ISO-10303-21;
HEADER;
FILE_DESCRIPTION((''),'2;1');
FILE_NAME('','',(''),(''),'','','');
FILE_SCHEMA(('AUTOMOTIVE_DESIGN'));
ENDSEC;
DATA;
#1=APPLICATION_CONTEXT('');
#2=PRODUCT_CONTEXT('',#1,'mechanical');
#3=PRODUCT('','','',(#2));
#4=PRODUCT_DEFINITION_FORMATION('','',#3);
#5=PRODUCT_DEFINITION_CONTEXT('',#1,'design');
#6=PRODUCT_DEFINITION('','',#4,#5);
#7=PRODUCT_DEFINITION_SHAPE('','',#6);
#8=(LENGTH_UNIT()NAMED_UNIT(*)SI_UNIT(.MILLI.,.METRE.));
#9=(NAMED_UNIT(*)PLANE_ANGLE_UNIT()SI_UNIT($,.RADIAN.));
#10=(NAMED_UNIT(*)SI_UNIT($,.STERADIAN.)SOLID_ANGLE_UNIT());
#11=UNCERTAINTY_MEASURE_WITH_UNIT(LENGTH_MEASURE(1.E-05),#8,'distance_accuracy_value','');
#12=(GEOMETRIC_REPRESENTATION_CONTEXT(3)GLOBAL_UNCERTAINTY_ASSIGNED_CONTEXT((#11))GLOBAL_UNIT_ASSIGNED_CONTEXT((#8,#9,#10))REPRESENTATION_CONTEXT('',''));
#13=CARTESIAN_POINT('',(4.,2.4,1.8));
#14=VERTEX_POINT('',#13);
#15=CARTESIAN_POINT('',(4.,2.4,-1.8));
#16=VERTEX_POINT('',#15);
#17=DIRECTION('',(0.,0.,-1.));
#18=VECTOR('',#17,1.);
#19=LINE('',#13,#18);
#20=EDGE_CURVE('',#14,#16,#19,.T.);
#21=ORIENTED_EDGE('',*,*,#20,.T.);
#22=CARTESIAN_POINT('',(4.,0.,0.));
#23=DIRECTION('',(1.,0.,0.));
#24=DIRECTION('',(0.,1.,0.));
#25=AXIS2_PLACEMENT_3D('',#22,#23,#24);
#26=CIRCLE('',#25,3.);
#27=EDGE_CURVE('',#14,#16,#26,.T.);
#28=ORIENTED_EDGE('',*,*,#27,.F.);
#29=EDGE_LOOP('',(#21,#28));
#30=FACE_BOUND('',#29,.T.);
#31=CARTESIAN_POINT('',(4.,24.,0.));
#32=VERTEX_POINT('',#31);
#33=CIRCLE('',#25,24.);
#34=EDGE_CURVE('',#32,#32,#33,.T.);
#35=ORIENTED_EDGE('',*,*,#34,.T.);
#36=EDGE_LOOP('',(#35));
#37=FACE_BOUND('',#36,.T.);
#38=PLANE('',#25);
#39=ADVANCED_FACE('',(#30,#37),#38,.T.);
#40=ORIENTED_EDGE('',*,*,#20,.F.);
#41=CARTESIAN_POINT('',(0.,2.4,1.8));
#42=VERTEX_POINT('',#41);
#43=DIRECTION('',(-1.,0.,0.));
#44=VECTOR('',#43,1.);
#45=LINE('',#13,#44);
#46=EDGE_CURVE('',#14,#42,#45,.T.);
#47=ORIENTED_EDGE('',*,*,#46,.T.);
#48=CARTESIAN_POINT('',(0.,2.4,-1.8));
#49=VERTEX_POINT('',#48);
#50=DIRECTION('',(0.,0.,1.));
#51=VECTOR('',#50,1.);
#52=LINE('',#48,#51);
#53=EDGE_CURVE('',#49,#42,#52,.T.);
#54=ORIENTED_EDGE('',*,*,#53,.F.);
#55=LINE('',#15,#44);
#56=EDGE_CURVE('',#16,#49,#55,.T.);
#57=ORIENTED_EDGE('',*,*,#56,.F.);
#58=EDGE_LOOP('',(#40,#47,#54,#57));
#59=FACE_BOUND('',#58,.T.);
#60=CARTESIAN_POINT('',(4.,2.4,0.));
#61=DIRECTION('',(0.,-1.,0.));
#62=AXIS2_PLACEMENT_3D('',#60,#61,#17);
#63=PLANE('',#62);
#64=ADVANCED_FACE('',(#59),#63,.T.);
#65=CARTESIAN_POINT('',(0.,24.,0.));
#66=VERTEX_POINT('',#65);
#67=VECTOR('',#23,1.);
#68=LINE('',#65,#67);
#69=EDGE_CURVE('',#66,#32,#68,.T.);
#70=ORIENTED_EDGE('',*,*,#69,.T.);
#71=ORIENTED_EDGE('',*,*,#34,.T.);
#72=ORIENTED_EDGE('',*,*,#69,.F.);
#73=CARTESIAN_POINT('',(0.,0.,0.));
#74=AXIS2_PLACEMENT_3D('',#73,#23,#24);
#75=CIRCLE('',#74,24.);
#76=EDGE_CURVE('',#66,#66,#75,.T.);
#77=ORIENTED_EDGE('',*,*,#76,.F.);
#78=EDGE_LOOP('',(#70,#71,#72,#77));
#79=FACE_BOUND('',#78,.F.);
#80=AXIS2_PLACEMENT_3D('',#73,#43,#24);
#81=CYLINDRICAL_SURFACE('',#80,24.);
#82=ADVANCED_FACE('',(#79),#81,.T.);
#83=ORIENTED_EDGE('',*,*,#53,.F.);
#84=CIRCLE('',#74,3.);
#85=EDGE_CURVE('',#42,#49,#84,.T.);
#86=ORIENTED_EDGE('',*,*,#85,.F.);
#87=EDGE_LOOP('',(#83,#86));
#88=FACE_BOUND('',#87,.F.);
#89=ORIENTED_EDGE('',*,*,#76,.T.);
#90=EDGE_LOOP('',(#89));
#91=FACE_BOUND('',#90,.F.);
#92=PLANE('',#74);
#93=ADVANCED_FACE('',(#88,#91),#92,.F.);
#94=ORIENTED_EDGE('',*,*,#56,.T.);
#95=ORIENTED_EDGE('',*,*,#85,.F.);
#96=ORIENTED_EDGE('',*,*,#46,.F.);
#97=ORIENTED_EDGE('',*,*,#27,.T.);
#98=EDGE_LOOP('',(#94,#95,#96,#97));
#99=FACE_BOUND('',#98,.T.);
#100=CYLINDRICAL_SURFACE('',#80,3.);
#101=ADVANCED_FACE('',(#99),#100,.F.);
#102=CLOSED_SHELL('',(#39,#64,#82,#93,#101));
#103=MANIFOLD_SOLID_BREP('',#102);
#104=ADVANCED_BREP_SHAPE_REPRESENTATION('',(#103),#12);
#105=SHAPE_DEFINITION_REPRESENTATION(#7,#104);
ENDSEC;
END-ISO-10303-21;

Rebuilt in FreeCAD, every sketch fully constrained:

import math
import FreeCAD as App
import Part
import Sketcher
from FreeCAD import Vector
Q = App.Units.Quantity

doc = App.newDocument("Part")
body = doc.addObject("PartDesign::Body", "Body")

sketch1 = doc.addObject("Sketcher::SketchObject", "Sketch")
body.addObject(sketch1)
sketch1.AttachmentSupport = (doc.YZ_Plane, [""])
sketch1.MapMode = "FlatFace"
sketch1.addGeometry([
    Part.Circle(Vector(0, 0, 0), Vector(0, 0, 1), 24),
    Part.Circle(Vector(0, 0, 0), Vector(0, 0, 1), 3),
], False)
sketch1.addConstraint([
    Sketcher.Constraint("Coincident", 0, 3, -1, 1),
    Sketcher.Constraint("Coincident", 1, 3, -1, 1),
    Sketcher.Constraint("Diameter", 0, Q("48 mm")),
    Sketcher.Constraint("Diameter", 1, Q("6 mm")),
])
pad1 = doc.addObject("PartDesign::Pad", "Pad")
body.addObject(pad1)
pad1.Profile = sketch1
pad1.Length = 4

sketch2 = doc.addObject("Sketcher::SketchObject", "Sketch001")
body.addObject(sketch2)
sketch2.AttachmentSupport = (doc.YZ_Plane, [""])
sketch2.MapMode = "FlatFace"
sketch2.AttachmentOffset = App.Placement(Vector(0, 0, 4), App.Rotation())
sketch2.addGeometry([
    Part.LineSegment(Vector(2.4, 1.8, 0), Vector(2.4, -1.8, 0)),
    Part.ArcOfCircle(Part.Circle(Vector(0, 0, 0), Vector(0, 0, 1), 3), math.radians(-36.869898), math.radians(36.869898)),
], False)
sketch2.addConstraint([
    Sketcher.Constraint("Coincident", 0, 1, 1, 2),
    Sketcher.Constraint("Coincident", 1, 1, 0, 2),
    Sketcher.Constraint("Vertical", 0),
    Sketcher.Constraint("Coincident", 1, 3, -1, 1),
    Sketcher.Constraint("Radius", 1, Q("3 mm")),
    Sketcher.Constraint("DistanceY", 0, 2, 0, 1, Q("3.6 mm")),
])
pad2 = doc.addObject("PartDesign::Pad", "Pad001")
body.addObject(pad2)
pad2.Profile = sketch2
pad2.Length = 4
pad2.Reversed = True

doc.recompute()
